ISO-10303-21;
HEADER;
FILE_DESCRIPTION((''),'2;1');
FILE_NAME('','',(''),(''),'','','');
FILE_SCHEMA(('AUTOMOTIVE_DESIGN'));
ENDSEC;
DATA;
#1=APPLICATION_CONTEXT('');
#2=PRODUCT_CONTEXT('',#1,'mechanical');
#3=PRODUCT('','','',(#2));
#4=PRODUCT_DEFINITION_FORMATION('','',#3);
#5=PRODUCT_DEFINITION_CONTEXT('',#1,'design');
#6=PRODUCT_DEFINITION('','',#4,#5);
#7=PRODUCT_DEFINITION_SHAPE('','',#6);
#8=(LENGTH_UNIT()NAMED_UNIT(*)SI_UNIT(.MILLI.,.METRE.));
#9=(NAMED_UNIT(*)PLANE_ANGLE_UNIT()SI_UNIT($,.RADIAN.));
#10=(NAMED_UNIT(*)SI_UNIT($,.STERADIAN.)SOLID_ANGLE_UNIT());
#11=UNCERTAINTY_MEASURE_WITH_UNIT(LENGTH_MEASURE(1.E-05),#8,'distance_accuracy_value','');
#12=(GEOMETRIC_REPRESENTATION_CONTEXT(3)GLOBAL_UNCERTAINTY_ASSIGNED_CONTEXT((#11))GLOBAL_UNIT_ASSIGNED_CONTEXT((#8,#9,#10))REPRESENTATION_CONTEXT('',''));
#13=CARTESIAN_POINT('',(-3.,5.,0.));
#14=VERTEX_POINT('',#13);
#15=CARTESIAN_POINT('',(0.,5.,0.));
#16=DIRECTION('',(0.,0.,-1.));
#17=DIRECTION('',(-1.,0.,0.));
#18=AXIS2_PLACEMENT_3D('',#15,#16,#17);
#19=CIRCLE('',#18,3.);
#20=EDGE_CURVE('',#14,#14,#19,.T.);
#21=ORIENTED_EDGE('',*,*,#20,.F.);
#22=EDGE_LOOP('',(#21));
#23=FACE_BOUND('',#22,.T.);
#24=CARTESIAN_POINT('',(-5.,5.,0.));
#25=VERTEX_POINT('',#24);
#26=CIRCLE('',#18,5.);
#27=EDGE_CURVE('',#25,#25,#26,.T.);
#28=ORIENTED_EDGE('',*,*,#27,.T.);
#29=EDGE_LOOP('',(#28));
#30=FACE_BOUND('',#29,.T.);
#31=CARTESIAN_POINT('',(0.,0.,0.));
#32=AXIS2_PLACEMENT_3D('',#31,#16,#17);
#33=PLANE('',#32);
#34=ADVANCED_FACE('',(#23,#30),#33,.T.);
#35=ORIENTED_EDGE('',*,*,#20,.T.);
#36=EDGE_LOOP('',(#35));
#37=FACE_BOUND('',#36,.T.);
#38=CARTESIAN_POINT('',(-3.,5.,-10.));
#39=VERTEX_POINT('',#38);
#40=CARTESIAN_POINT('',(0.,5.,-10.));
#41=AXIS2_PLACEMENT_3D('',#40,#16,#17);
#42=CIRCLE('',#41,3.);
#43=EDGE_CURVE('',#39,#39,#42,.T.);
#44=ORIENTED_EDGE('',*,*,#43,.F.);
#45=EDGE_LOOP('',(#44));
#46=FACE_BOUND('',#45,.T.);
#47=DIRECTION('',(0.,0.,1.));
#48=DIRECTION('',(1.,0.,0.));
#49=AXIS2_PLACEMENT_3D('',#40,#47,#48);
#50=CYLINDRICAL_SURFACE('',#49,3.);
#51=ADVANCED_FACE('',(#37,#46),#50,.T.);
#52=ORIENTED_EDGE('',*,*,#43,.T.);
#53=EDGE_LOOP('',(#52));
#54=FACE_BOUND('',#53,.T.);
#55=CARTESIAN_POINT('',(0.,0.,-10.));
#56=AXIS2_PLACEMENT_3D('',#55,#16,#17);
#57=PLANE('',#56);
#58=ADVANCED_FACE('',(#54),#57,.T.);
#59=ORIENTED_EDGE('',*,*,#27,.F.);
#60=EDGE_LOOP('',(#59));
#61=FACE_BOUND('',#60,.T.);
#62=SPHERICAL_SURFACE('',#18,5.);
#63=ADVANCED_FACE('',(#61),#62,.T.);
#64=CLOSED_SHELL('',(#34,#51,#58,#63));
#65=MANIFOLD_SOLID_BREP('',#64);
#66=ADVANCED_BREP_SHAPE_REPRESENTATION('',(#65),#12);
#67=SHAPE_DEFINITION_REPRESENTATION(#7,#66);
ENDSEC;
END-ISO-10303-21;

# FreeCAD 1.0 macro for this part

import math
import FreeCAD as App
import Part
import Sketcher

V = App.Vector
Q = App.Units.Quantity

doc = App.newDocument("Part")
body = doc.addObject("PartDesign::Body", "Body")

sketch1 = body.newObject("Sketcher::SketchObject", "Sketch")
sketch1.AttachmentSupport = (doc.getObject("XY_Plane"), [""])
sketch1.MapMode = "FlatFace"
sketch1.addGeometry([
    Part.LineSegment(V(0, 0, 0), V(0, 10, 0)),
    Part.ArcOfCircle(Part.Circle(V(0, 5, 0), V(0, 0, 1), 5), math.radians(90), math.radians(270)),
], False)
sketch1.addConstraint([
    Sketcher.Constraint("Coincident", 0, 1, 1, 2),
    Sketcher.Constraint("Coincident", 1, 1, 0, 2),
    Sketcher.Constraint("Vertical", 0),
    Sketcher.Constraint("Coincident", 0, 1, -1, 1),
    Sketcher.Constraint("PointOnObject", 1, 3, -2),
    Sketcher.Constraint("Radius", 1, Q("5 mm")),
])
revolution = body.newObject("PartDesign::Revolution", "Revolution")
revolution.Profile = sketch1
revolution.ReferenceAxis = (sketch1, ["V_Axis"])
revolution.Angle = 180

sketch2 = body.newObject("Sketcher::SketchObject", "Sketch001")
sketch2.AttachmentSupport = (doc.getObject("XY_Plane"), [""])
sketch2.MapMode = "FlatFace"
sketch2.addGeometry(Part.Circle(V(0, 5, 0), V(0, 0, 1), 3), False)
sketch2.addConstraint([
    Sketcher.Constraint("PointOnObject", 0, 3, -2),
    Sketcher.Constraint("Diameter", 0, Q("6 mm")),
    Sketcher.Constraint("DistanceY", -1, 1, 0, 3, Q("5 mm")),
])
pad1 = body.newObject("PartDesign::Pad", "Pad")
pad1.Profile = sketch2
pad1.Length = 10
pad1.Reversed = True

doc.recompute()
